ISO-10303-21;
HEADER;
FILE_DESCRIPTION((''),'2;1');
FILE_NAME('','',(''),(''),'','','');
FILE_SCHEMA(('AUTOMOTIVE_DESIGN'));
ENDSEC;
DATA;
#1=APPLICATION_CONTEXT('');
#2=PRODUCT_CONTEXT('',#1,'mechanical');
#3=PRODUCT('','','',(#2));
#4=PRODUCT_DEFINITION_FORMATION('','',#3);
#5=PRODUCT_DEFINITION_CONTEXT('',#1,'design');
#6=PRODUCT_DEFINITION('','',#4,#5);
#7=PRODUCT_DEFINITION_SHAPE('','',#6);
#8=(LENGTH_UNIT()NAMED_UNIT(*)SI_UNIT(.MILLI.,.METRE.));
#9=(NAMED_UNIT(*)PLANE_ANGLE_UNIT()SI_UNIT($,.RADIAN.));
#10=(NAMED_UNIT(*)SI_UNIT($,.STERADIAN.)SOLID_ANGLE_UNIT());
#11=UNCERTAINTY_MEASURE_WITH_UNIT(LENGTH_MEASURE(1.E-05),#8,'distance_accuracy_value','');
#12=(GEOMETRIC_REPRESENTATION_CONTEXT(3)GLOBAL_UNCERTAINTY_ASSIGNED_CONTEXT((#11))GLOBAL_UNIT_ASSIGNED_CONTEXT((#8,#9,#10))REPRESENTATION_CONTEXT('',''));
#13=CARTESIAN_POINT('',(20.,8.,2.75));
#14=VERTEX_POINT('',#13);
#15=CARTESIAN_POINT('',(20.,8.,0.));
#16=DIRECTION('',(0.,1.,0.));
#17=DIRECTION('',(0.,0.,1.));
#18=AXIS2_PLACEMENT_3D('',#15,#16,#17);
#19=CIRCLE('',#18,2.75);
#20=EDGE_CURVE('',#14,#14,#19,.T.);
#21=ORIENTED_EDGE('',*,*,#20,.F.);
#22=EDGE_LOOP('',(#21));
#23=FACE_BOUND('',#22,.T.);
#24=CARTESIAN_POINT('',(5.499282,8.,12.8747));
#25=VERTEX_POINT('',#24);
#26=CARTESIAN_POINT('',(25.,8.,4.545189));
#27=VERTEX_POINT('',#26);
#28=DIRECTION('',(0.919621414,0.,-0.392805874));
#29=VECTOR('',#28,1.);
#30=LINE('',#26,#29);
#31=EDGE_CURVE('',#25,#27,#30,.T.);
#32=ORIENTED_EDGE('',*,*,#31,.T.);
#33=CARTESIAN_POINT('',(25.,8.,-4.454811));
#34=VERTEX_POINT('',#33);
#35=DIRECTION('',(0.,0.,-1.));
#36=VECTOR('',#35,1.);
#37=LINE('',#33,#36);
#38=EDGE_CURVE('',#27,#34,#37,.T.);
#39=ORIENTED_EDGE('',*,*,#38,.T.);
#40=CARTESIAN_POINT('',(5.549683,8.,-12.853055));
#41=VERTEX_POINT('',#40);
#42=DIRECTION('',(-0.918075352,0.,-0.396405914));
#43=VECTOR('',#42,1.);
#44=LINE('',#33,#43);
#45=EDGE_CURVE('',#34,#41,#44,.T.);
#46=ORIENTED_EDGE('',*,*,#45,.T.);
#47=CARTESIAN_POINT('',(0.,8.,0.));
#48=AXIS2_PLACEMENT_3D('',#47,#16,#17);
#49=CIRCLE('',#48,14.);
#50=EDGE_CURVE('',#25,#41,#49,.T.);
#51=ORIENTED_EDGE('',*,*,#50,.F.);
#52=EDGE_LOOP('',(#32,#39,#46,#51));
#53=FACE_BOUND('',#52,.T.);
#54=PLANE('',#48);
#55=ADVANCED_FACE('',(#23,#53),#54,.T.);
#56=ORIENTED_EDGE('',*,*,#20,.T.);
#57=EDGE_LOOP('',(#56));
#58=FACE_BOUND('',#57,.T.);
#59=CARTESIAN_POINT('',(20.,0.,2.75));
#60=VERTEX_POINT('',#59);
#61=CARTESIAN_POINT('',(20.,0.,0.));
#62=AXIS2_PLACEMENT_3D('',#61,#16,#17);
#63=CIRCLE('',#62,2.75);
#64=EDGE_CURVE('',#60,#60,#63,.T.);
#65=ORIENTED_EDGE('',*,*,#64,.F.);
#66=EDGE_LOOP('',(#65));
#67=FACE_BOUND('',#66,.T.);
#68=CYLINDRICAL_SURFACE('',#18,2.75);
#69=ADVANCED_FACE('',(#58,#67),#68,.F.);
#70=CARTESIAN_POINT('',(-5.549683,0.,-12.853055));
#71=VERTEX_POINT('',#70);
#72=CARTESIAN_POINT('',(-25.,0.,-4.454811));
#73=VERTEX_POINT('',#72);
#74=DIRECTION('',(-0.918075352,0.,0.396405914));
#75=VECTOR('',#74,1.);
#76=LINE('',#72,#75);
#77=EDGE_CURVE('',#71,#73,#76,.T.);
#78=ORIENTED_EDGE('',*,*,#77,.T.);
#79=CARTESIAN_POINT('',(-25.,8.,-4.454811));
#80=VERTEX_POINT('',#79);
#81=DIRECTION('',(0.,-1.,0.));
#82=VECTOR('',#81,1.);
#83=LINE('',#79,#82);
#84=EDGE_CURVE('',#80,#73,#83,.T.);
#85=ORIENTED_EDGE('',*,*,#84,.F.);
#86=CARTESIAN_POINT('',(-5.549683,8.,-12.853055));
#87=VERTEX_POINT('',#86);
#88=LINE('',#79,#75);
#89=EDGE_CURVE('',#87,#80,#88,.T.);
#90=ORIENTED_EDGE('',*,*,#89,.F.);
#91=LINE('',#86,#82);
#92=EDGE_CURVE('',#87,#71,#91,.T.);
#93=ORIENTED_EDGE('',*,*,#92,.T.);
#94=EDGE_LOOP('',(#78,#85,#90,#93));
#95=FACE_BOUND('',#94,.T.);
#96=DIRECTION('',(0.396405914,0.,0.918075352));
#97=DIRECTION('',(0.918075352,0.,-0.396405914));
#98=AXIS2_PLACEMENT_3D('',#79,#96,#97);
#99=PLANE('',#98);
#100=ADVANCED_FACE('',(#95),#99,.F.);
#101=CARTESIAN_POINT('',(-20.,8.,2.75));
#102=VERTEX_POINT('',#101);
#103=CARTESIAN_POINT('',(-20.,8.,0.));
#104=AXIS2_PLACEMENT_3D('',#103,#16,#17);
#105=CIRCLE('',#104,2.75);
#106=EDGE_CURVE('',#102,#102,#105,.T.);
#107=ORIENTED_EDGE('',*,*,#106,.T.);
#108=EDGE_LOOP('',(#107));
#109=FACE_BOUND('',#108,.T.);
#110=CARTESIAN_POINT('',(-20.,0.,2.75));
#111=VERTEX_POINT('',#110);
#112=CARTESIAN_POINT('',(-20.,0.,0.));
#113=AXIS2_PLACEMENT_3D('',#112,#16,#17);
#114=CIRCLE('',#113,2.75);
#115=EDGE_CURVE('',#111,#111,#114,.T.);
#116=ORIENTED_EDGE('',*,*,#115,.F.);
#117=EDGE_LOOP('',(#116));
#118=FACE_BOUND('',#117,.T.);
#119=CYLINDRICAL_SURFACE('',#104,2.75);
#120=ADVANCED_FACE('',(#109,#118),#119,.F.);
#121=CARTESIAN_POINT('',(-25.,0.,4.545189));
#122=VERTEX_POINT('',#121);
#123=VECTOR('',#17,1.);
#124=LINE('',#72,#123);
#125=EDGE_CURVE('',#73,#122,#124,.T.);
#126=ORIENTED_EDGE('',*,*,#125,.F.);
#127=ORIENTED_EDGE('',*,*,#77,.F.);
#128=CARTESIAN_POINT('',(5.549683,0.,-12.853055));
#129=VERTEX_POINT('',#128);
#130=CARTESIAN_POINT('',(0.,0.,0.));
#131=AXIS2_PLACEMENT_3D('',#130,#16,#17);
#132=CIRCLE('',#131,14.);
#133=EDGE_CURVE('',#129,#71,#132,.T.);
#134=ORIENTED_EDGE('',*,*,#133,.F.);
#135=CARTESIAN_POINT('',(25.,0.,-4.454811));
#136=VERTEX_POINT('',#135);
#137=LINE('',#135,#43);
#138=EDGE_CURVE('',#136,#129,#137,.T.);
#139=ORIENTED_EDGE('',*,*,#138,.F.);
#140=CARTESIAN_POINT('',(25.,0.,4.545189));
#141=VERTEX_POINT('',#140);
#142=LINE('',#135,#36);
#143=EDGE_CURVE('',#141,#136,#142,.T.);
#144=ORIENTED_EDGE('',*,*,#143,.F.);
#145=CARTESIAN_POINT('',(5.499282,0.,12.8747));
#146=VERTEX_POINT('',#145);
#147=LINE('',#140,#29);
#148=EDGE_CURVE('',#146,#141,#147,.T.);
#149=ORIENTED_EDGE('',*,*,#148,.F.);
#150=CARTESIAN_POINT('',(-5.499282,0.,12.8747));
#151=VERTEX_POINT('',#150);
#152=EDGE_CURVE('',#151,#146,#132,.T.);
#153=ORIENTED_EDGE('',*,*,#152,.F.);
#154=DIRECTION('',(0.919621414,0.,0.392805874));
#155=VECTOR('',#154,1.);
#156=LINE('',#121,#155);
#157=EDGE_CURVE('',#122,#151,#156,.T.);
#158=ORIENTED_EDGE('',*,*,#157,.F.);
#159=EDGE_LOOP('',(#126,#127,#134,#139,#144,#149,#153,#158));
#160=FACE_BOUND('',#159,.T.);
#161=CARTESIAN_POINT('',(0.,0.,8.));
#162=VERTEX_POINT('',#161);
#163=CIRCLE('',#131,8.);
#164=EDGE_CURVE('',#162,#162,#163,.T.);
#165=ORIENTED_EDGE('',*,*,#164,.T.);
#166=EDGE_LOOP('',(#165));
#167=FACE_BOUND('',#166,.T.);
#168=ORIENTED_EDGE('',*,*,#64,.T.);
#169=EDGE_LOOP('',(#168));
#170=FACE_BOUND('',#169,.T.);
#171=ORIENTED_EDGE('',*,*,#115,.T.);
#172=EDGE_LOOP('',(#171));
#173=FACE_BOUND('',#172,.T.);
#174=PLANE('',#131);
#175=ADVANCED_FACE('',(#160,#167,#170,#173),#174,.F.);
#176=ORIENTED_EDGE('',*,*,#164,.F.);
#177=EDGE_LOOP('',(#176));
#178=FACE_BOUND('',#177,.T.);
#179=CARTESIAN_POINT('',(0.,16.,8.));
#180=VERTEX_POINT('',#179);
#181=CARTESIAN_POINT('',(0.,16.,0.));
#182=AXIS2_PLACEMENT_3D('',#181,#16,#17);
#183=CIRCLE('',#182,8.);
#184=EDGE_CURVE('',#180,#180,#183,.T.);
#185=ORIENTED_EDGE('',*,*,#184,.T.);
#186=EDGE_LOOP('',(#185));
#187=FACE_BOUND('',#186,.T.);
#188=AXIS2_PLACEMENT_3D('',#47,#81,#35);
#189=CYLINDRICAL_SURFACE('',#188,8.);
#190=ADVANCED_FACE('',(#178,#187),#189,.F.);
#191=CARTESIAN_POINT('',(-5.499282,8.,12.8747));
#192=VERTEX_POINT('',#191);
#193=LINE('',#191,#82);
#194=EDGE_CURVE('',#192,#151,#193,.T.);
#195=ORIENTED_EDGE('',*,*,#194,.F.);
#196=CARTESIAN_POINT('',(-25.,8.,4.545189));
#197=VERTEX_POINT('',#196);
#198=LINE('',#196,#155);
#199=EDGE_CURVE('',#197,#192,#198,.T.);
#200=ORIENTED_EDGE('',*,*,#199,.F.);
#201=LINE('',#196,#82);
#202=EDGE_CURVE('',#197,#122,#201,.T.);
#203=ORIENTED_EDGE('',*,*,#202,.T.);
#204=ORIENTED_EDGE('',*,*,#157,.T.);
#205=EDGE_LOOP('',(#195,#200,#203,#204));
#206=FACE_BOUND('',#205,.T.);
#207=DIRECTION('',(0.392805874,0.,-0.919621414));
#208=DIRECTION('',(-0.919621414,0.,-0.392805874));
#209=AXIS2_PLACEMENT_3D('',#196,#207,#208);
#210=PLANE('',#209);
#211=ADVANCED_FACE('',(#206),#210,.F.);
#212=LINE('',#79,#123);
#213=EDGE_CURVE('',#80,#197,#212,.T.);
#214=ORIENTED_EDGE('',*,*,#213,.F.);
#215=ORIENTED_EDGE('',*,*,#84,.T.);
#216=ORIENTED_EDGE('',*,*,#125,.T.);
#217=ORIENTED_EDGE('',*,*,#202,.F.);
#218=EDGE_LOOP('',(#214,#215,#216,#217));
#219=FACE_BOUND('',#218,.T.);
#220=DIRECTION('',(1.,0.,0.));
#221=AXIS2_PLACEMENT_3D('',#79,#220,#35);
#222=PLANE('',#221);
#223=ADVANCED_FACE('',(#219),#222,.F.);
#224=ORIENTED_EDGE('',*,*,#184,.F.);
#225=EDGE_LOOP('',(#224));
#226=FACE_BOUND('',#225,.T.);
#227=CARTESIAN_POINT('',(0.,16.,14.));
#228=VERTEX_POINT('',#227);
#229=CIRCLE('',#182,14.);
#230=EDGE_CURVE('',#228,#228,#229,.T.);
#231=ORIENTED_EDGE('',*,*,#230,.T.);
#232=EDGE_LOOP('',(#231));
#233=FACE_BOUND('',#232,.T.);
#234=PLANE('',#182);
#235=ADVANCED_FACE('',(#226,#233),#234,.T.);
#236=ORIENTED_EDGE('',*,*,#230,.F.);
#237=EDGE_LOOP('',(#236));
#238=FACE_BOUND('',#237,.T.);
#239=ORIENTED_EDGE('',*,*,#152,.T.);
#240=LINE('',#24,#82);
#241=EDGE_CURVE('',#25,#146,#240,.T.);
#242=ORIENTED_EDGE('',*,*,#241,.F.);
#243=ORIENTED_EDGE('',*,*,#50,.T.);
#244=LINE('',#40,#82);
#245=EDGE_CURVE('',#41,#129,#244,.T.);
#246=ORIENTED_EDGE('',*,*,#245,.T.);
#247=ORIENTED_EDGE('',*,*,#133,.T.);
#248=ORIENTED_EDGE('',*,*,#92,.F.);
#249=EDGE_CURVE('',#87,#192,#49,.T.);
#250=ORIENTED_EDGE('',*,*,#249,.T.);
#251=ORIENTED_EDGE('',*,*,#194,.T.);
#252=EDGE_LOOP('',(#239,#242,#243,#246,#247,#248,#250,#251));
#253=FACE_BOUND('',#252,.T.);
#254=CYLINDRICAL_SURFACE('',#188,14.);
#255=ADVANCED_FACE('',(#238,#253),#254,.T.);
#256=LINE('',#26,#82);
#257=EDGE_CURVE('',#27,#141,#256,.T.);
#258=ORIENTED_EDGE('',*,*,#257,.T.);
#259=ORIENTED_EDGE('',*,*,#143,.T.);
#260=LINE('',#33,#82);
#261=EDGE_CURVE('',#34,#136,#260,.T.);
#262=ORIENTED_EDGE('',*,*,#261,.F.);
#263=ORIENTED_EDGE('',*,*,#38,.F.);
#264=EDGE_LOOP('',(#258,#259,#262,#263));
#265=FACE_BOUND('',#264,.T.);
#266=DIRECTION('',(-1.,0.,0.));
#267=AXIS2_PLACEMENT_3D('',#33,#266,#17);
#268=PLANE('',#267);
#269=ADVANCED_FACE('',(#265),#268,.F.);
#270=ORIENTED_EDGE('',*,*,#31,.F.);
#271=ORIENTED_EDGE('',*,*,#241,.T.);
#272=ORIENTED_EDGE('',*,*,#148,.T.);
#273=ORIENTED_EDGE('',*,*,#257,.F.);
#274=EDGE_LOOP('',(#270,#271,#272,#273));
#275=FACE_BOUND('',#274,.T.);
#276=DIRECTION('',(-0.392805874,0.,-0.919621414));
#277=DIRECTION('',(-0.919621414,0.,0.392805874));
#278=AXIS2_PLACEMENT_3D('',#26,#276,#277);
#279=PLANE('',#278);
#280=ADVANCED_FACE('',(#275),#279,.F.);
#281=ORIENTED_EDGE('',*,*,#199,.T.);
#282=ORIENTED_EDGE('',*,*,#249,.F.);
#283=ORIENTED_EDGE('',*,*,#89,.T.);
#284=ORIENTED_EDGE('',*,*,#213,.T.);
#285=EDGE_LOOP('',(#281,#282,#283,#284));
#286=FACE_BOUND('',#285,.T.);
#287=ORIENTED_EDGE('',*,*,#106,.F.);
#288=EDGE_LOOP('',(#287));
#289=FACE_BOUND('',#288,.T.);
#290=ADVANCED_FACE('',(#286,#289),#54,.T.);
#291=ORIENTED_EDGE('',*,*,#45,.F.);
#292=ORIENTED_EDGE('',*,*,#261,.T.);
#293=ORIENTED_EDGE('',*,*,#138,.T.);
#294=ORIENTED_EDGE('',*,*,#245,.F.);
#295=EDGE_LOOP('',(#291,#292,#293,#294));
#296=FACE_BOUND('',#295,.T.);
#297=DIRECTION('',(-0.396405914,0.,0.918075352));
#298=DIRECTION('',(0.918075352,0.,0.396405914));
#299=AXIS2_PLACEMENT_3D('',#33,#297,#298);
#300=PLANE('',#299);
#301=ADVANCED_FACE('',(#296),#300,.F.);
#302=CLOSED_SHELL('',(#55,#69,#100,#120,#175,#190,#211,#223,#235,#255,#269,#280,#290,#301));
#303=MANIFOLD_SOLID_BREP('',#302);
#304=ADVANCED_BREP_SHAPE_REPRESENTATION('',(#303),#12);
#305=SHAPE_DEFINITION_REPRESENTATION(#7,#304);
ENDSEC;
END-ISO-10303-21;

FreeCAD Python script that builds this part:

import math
import FreeCAD as App
import Part
import Sketcher

V = App.Vector
Q = App.Units.Quantity

doc = App.newDocument("Part")
body = doc.addObject("PartDesign::Body", "Body")

sketch1 = doc.addObject("Sketcher::SketchObject", "Sketch")
body.addObject(sketch1)
sketch1.AttachmentSupport = (doc.XZ_Plane, [""])
sketch1.MapMode = "FlatFace"
sketch1.addGeometry(Part.LineSegment(V(-25, -4, 0), V(-25, 5, 0)), False)
sketch1.addGeometry(Part.LineSegment(V(-25, 5, 0), V(-5, 13, 0)), False)
sketch1.addGeometry(Part.ArcOfCircle(Part.Circle(V(0, 0, 0), V(0, 0, 1), 14), math.radians(67), math.radians(113)), False)
sketch1.addGeometry(Part.LineSegment(V(5, 13, 0), V(25, 5, 0)), False)
sketch1.addGeometry(Part.LineSegment(V(25, 5, 0), V(25, -4, 0)), False)
sketch1.addGeometry(Part.LineSegment(V(25, -4, 0), V(6, -13, 0)), False)
sketch1.addGeometry(Part.ArcOfCircle(Part.Circle(V(0, 0, 0), V(0, 0, 1), 14), math.radians(-113), math.radians(-67)), False)
sketch1.addGeometry(Part.LineSegment(V(-6, -13, 0), V(-25, -4, 0)), False)
sketch1.addGeometry(Part.Circle(V(0, 0, 0), V(0, 0, 1), 8), False)
sketch1.addConstraint(Sketcher.Constraint("Coincident", 0, 2, 1, 1))
sketch1.addConstraint(Sketcher.Constraint("Tangent", 1, 2, 2, 2))
sketch1.addConstraint(Sketcher.Constraint("Tangent", 2, 1, 3, 1))
sketch1.addConstraint(Sketcher.Constraint("Coincident", 3, 2, 4, 1))
sketch1.addConstraint(Sketcher.Constraint("Coincident", 4, 2, 5, 1))
sketch1.addConstraint(Sketcher.Constraint("Tangent", 5, 2, 6, 2))
sketch1.addConstraint(Sketcher.Constraint("Tangent", 6, 1, 7, 1))
sketch1.addConstraint(Sketcher.Constraint("Coincident", 7, 2, 0, 1))
sketch1.addConstraint(Sketcher.Constraint("Vertical", 0))
sketch1.addConstraint(Sketcher.Constraint("Vertical", 4))
sketch1.addConstraint(Sketcher.Constraint("Coincident", 2, 3, -1, 1))
sketch1.addConstraint(Sketcher.Constraint("Coincident", 6, 3, -1, 1))
sketch1.addConstraint(Sketcher.Constraint("Coincident", 8, 3, -1, 1))
sketch1.addConstraint(Sketcher.Constraint("Equal", 2, 6))
sketch1.addConstraint(Sketcher.Constraint("Symmetric", 0, 2, 3, 2, -2))
sketch1.addConstraint(Sketcher.Constraint("Horizontal", 5, 2, 6, 1))
sketch1.addConstraint(Sketcher.Constraint("Diameter", 8, Q("16 mm")))
sketch1.addConstraint(Sketcher.Constraint("Radius", 2, Q("14 mm")))
sketch1.addConstraint(Sketcher.Constraint("DistanceY", 0, 1, 0, 2, Q("9 mm")))
sketch1.addConstraint(Sketcher.Constraint("DistanceX", 0, 2, -1, 1, Q("25 mm")))
sketch1.addConstraint(Sketcher.Constraint("DistanceY", -1, 1, 1, 2, Q("12.8747 mm")))
pad1 = doc.addObject("PartDesign::Pad", "Pad")
body.addObject(pad1)
pad1.Profile = sketch1
pad1.Length = 8
pad1.Reversed = True

sketch2 = doc.addObject("Sketcher::SketchObject", "Sketch001")
body.addObject(sketch2)
sketch2.AttachmentSupport = (doc.XZ_Plane, [""])
sketch2.MapMode = "FlatFace"
sketch2.AttachmentOffset = App.Placement(V(0, 0, -8), App.Rotation())
sketch2.addGeometry(Part.Circle(V(0, 0, 0), V(0, 0, 1), 14), False)
sketch2.addGeometry(Part.Circle(V(0, 0, 0), V(0, 0, 1), 8), False)
sketch2.addConstraint(Sketcher.Constraint("Coincident", 0, 3, -1, 1))
sketch2.addConstraint(Sketcher.Constraint("Coincident", 1, 3, -1, 1))
sketch2.addConstraint(Sketcher.Constraint("Diameter", 0, Q("28 mm")))
sketch2.addConstraint(Sketcher.Constraint("Diameter", 1, Q("16 mm")))
pad2 = doc.addObject("PartDesign::Pad", "Pad001")
body.addObject(pad2)
pad2.Profile = sketch2
pad2.Length = 8
pad2.Reversed = True

sketch3 = doc.addObject("Sketcher::SketchObject", "Sketch002")
body.addObject(sketch3)
sketch3.AttachmentSupport = (doc.XZ_Plane, [""])
sketch3.MapMode = "FlatFace"
sketch3.AttachmentOffset = App.Placement(V(0, 0, -8), App.Rotation())
sketch3.addGeometry(Part.Circle(V(-20, 0, 0), V(0, 0, 1), 2.8), False)
sketch3.addGeometry(Part.Circle(V(20, 0, 0), V(0, 0, 1), 2.8), False)
sketch3.addConstraint(Sketcher.Constraint("Equal", 0, 1))
sketch3.addConstraint(Sketcher.Constraint("Symmetric", 0, 3, 1, 3, -1, 1))
sketch3.addConstraint(Sketcher.Constraint("PointOnObject", 0, 3, -1))
sketch3.addConstraint(Sketcher.Constraint("Diameter", 0, Q("5.5 mm")))
sketch3.addConstraint(Sketcher.Constraint("DistanceX", 0, 3, -1, 1, Q("20 mm")))
doc.recompute()
hole = doc.addObject("PartDesign::Hole", "Hole")
body.addObject(hole)
hole.Profile = sketch3
hole.ThreadType = "None"
hole.Diameter = 5.5
hole.DepthType = "ThroughAll"
hole.Reversed = True

doc.recompute()
